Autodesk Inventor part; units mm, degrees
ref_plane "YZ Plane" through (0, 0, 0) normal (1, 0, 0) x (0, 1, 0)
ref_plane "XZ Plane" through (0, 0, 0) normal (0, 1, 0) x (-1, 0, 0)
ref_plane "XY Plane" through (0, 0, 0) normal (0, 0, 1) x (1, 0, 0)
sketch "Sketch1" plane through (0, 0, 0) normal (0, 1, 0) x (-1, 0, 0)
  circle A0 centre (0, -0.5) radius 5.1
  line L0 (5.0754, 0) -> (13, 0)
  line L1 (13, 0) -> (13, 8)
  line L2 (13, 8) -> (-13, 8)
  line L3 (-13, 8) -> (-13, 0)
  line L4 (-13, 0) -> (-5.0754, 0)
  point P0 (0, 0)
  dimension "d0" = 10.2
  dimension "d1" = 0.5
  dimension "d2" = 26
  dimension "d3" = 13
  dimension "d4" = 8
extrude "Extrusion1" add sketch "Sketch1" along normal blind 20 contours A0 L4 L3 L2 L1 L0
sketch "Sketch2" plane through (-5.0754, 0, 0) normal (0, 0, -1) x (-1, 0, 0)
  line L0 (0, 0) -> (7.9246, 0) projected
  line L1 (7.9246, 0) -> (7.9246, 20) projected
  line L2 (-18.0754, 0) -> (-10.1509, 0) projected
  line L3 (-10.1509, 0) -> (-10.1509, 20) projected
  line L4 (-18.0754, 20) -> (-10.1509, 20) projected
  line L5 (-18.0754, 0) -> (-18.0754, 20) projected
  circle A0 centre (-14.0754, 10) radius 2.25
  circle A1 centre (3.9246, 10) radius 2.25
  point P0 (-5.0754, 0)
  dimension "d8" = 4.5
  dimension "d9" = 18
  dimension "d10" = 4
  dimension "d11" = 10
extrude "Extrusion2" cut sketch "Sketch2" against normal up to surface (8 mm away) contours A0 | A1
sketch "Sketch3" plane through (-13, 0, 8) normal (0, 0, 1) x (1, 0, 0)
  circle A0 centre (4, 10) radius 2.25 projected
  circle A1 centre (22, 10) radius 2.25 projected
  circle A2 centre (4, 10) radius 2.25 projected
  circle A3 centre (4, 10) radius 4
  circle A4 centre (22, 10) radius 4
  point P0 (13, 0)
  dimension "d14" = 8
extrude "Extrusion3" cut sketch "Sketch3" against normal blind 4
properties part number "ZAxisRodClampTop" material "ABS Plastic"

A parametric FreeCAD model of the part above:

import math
import FreeCAD as App
import Part
import Sketcher

doc = App.newDocument("Part")
body = doc.addObject("PartDesign::Body", "Body")

# Sketch on XZ plane
sketch1 = body.newObject("Sketcher::SketchObject", "Sketch")
sketch1.AttachmentSupport = (doc.getObject("XZ_Plane"), [""])
sketch1.MapMode = "FlatFace"
sketch1.addGeometry(Part.ArcOfCircle(Part.Circle(App.Vector(0, 0, 0), App.Vector(0, 0, 1), 5), math.radians(6), math.radians(174)), False)
sketch1.addGeometry(Part.LineSegment(App.Vector(-5, 0, 0), App.Vector(-13, 0, 0)), False)
sketch1.addGeometry(Part.LineSegment(App.Vector(-13, 0, 0), App.Vector(-13, 8, 0)), False)
sketch1.addGeometry(Part.LineSegment(App.Vector(-13, 8, 0), App.Vector(13, 8, 0)), False)
sketch1.addGeometry(Part.LineSegment(App.Vector(13, 8, 0), App.Vector(13, 0, 0)), False)
sketch1.addGeometry(Part.LineSegment(App.Vector(13, 0, 0), App.Vector(5, 0, 0)), False)
sketch1.addConstraint(Sketcher.Constraint("Coincident", 0, 2, 1, 1))
sketch1.addConstraint(Sketcher.Constraint("Coincident", 1, 2, 2, 1))
sketch1.addConstraint(Sketcher.Constraint("Coincident", 2, 2, 3, 1))
sketch1.addConstraint(Sketcher.Constraint("Coincident", 3, 2, 4, 1))
sketch1.addConstraint(Sketcher.Constraint("Coincident", 4, 2, 5, 1))
sketch1.addConstraint(Sketcher.Constraint("Coincident", 5, 2, 0, 1))
sketch1.addConstraint(Sketcher.Constraint("Horizontal", 1))
sketch1.addConstraint(Sketcher.Constraint("Vertical", 2))
sketch1.addConstraint(Sketcher.Constraint("Horizontal", 3))
sketch1.addConstraint(Sketcher.Constraint("Vertical", 4))
sketch1.addConstraint(Sketcher.Constraint("Horizontal", 5))
sketch1.addConstraint(Sketcher.Constraint("Symmetric", 1, 2, 4, 2, -1, 1))
sketch1.addConstraint(Sketcher.Constraint("Symmetric", 0, 2, 5, 2, -2))
sketch1.addConstraint(Sketcher.Constraint("Radius", 0, 5.1))
sketch1.addConstraint(Sketcher.Constraint("DistanceX", 3, 1, 3, 2, 26.0))
sketch1.addConstraint(Sketcher.Constraint("DistanceY", 2, 1, 2, 2, 8.0))
sketch1.addConstraint(Sketcher.Constraint("DistanceY", 0, 3, -1, 1, 0.5))
pad1 = body.newObject("PartDesign::Pad", "Pad")
pad1.Profile = sketch1
pad1.Length = 20
pad1.Reversed = True

# Sketch on XY plane
sketch2 = body.newObject("Sketcher::SketchObject", "Sketch001")
sketch2.AttachmentSupport = (doc.getObject("XY_Plane"), [""])
sketch2.MapMode = "FlatFace"
sketch2.addGeometry(Part.Circle(App.Vector(9, 10, 0), App.Vector(0, 0, 1), 2.2), False)
sketch2.addGeometry(Part.Circle(App.Vector(-9, 10, 0), App.Vector(0, 0, 1), 2.2), False)
sketch2.addConstraint(Sketcher.Constraint("Equal", 0, 1))
sketch2.addConstraint(Sketcher.Constraint("Symmetric", 0, 3, 1, 3, -2))
sketch2.addConstraint(Sketcher.Constraint("Diameter", 0, 4.5))
sketch2.addConstraint(Sketcher.Constraint("DistanceY", -1, 1, 0, 3, 10.0))
sketch2.addConstraint(Sketcher.Constraint("DistanceX", 1, 3, 0, 3, 18.0))
pocket1 = body.newObject("PartDesign::Pocket", "Pocket")
pocket1.Profile = sketch2
pocket1.Length = 8
pocket1.Reversed = True

# Sketch on XY plane
sketch3 = body.newObject("Sketcher::SketchObject", "Sketch002")
sketch3.AttachmentSupport = (doc.getObject("XY_Plane"), [""])
sketch3.MapMode = "FlatFace"
sketch3.AttachmentOffset = App.Placement(App.Vector(0, 0, 8), App.Rotation())
sketch3.addGeometry(Part.Circle(App.Vector(-9, 10, 0), App.Vector(0, 0, 1), 4), False)
sketch3.addGeometry(Part.Circle(App.Vector(-9, 10, 0), App.Vector(0, 0, 1), 2.2), False)
sketch3.addGeometry(Part.Circle(App.Vector(9, 10, 0), App.Vector(0, 0, 1), 4), False)
sketch3.addGeometry(Part.Circle(App.Vector(9, 10, 0), App.Vector(0, 0, 1), 2.2), False)
sketch3.addConstraint(Sketcher.Constraint("Coincident", 1, 3, 0, 3))
sketch3.addConstraint(Sketcher.Constraint("Coincident", 3, 3, 2, 3))
sketch3.addConstraint(Sketcher.Constraint("Equal", 0, 2))
sketch3.addConstraint(Sketcher.Constraint("Equal", 1, 3))
sketch3.addConstraint(Sketcher.Constraint("Symmetric", 0, 3, 2, 3, -2))
sketch3.addConstraint(Sketcher.Constraint("Diameter", 0, 8.0))
sketch3.addConstraint(Sketcher.Constraint("Diameter", 1, 4.5))
sketch3.addConstraint(Sketcher.Constraint("DistanceX", 0, 3, -1, 1, 9.0))
sketch3.addConstraint(Sketcher.Constraint("DistanceY", -1, 1, 0, 3, 10.0))
pocket2 = body.newObject("PartDesign::Pocket", "Pocket001")
pocket2.Profile = sketch3
pocket2.Length = 4

doc.recompute()
